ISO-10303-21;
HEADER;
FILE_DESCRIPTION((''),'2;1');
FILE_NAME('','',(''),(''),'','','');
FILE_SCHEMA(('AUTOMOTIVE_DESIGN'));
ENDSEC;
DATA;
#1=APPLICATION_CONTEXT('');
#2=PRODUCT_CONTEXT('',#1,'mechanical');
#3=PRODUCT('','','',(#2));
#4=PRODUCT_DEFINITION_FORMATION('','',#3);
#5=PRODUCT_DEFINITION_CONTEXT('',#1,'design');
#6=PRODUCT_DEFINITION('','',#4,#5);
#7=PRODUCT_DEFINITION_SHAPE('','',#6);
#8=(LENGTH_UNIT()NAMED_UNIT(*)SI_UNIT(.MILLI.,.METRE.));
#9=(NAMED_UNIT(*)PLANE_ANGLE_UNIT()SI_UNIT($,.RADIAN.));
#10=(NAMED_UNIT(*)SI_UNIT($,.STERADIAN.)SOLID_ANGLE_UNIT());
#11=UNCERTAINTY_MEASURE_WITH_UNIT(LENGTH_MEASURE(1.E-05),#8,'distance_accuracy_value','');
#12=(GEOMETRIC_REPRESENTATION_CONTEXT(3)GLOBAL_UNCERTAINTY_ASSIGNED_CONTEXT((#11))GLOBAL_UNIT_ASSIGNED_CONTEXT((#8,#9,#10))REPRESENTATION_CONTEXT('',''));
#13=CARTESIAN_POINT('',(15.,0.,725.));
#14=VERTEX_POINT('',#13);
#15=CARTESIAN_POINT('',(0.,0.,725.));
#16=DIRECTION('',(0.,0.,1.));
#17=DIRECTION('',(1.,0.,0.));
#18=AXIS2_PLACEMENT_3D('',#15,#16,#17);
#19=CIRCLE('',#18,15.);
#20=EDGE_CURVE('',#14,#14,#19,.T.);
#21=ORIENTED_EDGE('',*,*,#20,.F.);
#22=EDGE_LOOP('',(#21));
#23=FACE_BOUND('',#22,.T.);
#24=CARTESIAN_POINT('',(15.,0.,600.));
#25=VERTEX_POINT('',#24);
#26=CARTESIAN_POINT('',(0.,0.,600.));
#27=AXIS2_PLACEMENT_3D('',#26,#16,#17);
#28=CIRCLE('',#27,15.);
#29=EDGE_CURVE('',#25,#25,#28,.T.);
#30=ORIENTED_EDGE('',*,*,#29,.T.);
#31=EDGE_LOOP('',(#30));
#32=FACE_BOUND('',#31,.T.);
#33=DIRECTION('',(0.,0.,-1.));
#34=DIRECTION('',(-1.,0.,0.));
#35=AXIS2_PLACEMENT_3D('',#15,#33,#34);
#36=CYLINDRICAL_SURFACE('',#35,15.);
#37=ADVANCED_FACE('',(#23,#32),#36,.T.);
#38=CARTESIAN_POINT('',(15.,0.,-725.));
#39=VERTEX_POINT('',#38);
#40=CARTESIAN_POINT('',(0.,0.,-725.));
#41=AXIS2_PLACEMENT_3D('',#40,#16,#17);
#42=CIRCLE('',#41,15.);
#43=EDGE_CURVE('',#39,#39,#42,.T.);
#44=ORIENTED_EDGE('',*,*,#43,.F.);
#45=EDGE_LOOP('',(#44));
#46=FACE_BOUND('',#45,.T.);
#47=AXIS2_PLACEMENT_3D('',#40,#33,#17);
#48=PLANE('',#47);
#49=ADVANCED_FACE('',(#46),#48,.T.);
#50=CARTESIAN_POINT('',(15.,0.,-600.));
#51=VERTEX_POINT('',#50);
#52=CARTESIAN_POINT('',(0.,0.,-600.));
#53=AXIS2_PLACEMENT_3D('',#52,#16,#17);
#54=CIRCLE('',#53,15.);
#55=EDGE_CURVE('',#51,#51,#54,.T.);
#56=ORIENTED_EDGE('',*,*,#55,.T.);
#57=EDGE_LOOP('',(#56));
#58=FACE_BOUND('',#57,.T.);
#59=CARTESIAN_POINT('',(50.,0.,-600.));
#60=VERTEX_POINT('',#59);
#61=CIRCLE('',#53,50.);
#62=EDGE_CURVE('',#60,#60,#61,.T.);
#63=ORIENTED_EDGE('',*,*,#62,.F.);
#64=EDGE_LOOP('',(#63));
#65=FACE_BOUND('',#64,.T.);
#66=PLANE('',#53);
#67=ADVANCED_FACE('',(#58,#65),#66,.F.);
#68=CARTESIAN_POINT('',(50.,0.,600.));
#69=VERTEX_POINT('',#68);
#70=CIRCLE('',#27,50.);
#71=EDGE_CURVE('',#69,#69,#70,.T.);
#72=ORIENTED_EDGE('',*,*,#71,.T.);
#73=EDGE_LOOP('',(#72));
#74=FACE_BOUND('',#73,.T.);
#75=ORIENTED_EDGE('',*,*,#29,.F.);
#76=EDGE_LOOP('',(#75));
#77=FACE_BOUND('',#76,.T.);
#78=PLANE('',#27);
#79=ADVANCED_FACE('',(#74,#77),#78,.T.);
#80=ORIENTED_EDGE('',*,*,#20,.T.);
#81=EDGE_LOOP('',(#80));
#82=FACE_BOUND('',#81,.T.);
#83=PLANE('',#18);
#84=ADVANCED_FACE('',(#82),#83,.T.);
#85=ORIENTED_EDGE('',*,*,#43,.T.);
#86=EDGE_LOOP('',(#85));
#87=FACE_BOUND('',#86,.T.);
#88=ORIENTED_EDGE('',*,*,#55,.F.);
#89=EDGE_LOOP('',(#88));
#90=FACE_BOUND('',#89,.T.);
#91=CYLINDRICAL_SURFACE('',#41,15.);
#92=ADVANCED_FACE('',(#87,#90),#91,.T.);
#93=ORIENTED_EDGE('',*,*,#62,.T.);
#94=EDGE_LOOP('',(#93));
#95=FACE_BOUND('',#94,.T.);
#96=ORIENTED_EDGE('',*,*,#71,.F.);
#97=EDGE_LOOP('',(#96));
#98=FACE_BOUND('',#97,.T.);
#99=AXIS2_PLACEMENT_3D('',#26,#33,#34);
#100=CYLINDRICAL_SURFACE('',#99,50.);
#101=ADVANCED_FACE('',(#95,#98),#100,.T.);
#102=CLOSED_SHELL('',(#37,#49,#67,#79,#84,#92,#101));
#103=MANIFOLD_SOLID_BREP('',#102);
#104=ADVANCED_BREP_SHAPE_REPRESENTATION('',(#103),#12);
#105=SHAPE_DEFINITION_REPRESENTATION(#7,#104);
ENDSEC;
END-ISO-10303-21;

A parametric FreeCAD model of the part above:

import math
import FreeCAD as App
import Part
import Sketcher

V = App.Vector
Q = App.Units.Quantity

doc = App.newDocument("Part")
body = doc.addObject("PartDesign::Body", "Body")

# Sketch on XY plane
sketch1 = doc.addObject("Sketcher::SketchObject", "Sketch")
body.addObject(sketch1)
sketch1.AttachmentSupport = (doc.XY_Plane, [""])
sketch1.MapMode = "FlatFace"
sketch1.addGeometry(Part.Circle(V(0, 0, 0), V(0, 0, 1), 50), False)
sketch1.addConstraint(Sketcher.Constraint("Coincident", 0, 3, -1, 1))
sketch1.addConstraint(Sketcher.Constraint("Diameter", 0, Q("100 mm")))
pad1 = doc.addObject("PartDesign::Pad", "Pad")
body.addObject(pad1)
pad1.Profile = sketch1
pad1.Length = 1200
pad1.Midplane = True

# Sketch on XY plane
sketch2 = doc.addObject("Sketcher::SketchObject", "Sketch001")
body.addObject(sketch2)
sketch2.AttachmentSupport = (doc.XY_Plane, [""])
sketch2.MapMode = "FlatFace"
sketch2.addGeometry(Part.LineSegment(V(-5, 18.3, 0), V(-5, 14.1, 0)), False)
sketch2.addGeometry(Part.ArcOfCircle(Part.Circle(V(0, 0, 0), V(0, 0, 1), 15), math.radians(109), math.radians(431)), False)
sketch2.addGeometry(Part.LineSegment(V(5, 14.1, 0), V(5, 18.3, 0)), False)
sketch2.addGeometry(Part.LineSegment(V(5, 18.3, 0), V(-5, 18.3, 0)), False)
sketch2.addConstraint(Sketcher.Constraint("Coincident", 0, 2, 1, 1))
sketch2.addConstraint(Sketcher.Constraint("Coincident", 1, 2, 2, 1))
sketch2.addConstraint(Sketcher.Constraint("Coincident", 2, 2, 3, 1))
sketch2.addConstraint(Sketcher.Constraint("Coincident", 3, 2, 0, 1))
sketch2.addConstraint(Sketcher.Constraint("Vertical", 0))
sketch2.addConstraint(Sketcher.Constraint("Vertical", 2))
sketch2.addConstraint(Sketcher.Constraint("Horizontal", 3))
sketch2.addConstraint(Sketcher.Constraint("Coincident", 1, 3, -1, 1))
sketch2.addConstraint(Sketcher.Constraint("Horizontal", 0, 2, 1, 2))
sketch2.addConstraint(Sketcher.Constraint("Radius", 1, Q("15 mm")))
sketch2.addConstraint(Sketcher.Constraint("DistanceX", 3, 2, 3, 1, Q("10 mm")))
sketch2.addConstraint(Sketcher.Constraint("DistanceY", -1, 1, 2, 2, Q("18.3 mm")))
pad2 = doc.addObject("PartDesign::Pad", "Pad001")
body.addObject(pad2)
pad2.Profile = sketch2
pad2.Length = 1200
pad2.Midplane = True

# Sketch on XY plane
sketch3 = doc.addObject("Sketcher::SketchObject", "Sketch002")
body.addObject(sketch3)
sketch3.AttachmentSupport = (doc.XY_Plane, [""])
sketch3.MapMode = "FlatFace"
sketch3.AttachmentOffset = App.Placement(V(0, 0, 600), App.Rotation())
sketch3.addGeometry(Part.Circle(V(0, 0, 0), V(0, 0, 1), 15), False)
sketch3.addConstraint(Sketcher.Constraint("Coincident", 0, 3, -1, 1))
sketch3.addConstraint(Sketcher.Constraint("Diameter", 0, Q("30 mm")))
pad3 = doc.addObject("PartDesign::Pad", "Pad002")
body.addObject(pad3)
pad3.Profile = sketch3
pad3.Length = 125
doc.recompute()

mirrored = doc.addObject("PartDesign::Mirrored", "Mirrored")
body.addObject(mirrored)
mirrored.Originals = [pad3]
mirrored.MirrorPlane = (doc.XY_Plane, [""])
body.Tip = mirrored

doc.recompute()
